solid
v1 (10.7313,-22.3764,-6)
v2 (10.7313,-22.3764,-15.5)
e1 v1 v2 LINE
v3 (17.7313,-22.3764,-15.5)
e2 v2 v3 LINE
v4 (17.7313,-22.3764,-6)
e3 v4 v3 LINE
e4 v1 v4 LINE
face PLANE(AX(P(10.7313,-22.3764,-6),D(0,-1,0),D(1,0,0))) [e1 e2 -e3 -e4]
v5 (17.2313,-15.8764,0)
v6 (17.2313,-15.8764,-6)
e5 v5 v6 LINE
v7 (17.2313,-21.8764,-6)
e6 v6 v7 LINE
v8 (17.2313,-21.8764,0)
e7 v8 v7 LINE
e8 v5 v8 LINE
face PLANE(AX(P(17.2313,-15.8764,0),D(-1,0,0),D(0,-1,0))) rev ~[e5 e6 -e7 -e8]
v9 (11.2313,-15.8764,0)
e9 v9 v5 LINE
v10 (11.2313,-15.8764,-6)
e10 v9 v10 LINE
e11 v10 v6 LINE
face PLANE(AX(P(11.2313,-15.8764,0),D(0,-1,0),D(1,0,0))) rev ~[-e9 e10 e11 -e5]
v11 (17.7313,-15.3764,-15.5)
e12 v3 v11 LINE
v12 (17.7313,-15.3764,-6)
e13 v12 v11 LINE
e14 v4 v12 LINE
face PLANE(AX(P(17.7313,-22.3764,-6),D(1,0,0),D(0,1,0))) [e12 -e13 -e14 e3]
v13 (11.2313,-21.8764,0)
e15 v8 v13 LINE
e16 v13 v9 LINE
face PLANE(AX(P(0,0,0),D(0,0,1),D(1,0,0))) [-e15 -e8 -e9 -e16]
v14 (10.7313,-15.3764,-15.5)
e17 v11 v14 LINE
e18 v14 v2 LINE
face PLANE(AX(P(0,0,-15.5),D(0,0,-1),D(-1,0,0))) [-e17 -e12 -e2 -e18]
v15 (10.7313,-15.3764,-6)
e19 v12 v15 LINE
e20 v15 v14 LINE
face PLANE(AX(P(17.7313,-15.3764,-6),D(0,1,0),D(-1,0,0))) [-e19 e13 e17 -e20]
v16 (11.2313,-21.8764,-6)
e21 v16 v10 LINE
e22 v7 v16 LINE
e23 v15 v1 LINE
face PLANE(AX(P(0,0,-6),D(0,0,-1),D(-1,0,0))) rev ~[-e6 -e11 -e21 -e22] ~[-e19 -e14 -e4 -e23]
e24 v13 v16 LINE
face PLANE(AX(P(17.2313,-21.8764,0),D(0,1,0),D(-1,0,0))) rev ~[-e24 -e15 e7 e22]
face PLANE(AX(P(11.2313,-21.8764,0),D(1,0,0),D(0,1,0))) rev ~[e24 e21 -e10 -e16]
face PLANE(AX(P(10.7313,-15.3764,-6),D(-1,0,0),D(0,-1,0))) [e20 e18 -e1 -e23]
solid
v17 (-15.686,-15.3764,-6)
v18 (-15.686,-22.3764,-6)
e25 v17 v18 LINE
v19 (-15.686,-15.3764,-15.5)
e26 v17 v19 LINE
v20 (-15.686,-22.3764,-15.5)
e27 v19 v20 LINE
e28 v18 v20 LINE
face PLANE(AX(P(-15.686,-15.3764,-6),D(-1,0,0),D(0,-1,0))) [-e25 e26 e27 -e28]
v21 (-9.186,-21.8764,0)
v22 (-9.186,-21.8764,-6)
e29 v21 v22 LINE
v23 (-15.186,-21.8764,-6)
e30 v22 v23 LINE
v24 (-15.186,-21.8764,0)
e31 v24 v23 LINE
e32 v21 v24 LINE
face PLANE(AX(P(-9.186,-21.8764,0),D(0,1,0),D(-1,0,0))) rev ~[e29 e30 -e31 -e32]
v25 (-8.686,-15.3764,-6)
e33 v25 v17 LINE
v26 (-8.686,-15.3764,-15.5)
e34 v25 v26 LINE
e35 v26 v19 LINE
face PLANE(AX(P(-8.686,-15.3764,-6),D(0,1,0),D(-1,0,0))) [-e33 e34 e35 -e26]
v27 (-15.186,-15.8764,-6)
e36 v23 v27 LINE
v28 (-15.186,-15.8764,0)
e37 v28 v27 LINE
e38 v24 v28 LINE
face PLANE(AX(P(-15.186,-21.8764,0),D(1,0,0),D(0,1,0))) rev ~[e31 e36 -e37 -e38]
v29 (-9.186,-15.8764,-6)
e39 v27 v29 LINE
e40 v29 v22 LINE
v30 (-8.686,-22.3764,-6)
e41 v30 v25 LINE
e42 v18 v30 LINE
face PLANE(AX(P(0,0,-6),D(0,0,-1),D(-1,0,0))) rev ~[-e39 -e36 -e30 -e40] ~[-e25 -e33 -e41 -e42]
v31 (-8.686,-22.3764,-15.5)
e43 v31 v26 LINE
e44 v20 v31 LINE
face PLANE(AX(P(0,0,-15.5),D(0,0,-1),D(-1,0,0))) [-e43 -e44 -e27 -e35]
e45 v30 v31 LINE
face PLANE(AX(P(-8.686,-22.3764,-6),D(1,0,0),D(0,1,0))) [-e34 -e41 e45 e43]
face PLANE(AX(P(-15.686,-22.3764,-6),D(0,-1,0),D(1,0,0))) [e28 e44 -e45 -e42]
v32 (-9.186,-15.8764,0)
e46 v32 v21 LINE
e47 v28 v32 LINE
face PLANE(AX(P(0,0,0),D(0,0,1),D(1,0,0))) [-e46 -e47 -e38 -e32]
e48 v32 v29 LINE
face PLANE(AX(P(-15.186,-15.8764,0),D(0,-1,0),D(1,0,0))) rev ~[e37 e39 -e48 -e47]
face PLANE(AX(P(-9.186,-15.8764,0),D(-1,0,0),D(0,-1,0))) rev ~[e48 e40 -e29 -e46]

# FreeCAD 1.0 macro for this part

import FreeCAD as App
import Part
import Sketcher

V = App.Vector

doc = App.newDocument("Part")
body = doc.addObject("PartDesign::Body", "Body")
body.AllowCompound = True

sketch1 = doc.addObject("Sketcher::SketchObject", "Sketch")
body.addObject(sketch1)
sketch1.AttachmentSupport = (doc.XY_Plane, [""])
sketch1.MapMode = "FlatFace"
sketch1.addGeometry([
    Part.LineSegment(V(-9, -16, 0), V(-15, -16, 0)),
    Part.LineSegment(V(-15, -16, 0), V(-15, -22, 0)),
    Part.LineSegment(V(-15, -22, 0), V(-9, -22, 0)),
    Part.LineSegment(V(-9, -22, 0), V(-9, -16, 0)),
    Part.LineSegment(V(17, -16, 0), V(11, -16, 0)),
    Part.LineSegment(V(11, -16, 0), V(11, -22, 0)),
    Part.LineSegment(V(11, -22, 0), V(17, -22, 0)),
    Part.LineSegment(V(17, -22, 0), V(17, -16, 0)),
], False)
sketch1.addConstraint([
    Sketcher.Constraint("Coincident", 0, 2, 1, 1),
    Sketcher.Constraint("Coincident", 1, 2, 2, 1),
    Sketcher.Constraint("Coincident", 2, 2, 3, 1),
    Sketcher.Constraint("Coincident", 3, 2, 0, 1),
    Sketcher.Constraint("Coincident", 4, 2, 5, 1),
    Sketcher.Constraint("Coincident", 5, 2, 6, 1),
    Sketcher.Constraint("Coincident", 6, 2, 7, 1),
    Sketcher.Constraint("Coincident", 7, 2, 4, 1),
    Sketcher.Constraint("Horizontal", 0),
    Sketcher.Constraint("Vertical", 1),
    Sketcher.Constraint("Horizontal", 2),
    Sketcher.Constraint("Vertical", 3),
    Sketcher.Constraint("Horizontal", 4),
    Sketcher.Constraint("Vertical", 5),
    Sketcher.Constraint("Horizontal", 6),
    Sketcher.Constraint("Vertical", 7),
    Sketcher.Constraint("Horizontal", 3, 2, 4, 2),
    Sketcher.Constraint("Horizontal", 2, 2, 5, 2),
    Sketcher.Constraint("Equal", 2, 4),
    Sketcher.Constraint("Equal", 6, 1),
    Sketcher.Constraint("DistanceX", 0, 2, 0, 1, 6.0),
    Sketcher.Constraint("DistanceX", 0, 2, -1, 1, 15.186),
    Sketcher.Constraint("DistanceY", 0, 2, -1, 1, 15.8764),
    Sketcher.Constraint("DistanceX", -1, 1, 4, 2, 11.2313),
])
pad1 = doc.addObject("PartDesign::Pad", "Pad")
body.addObject(pad1)
pad1.Profile = sketch1
pad1.Length = 6
pad1.Reversed = True

sketch2 = doc.addObject("Sketcher::SketchObject", "Sketch001")
body.addObject(sketch2)
sketch2.AttachmentSupport = (doc.XY_Plane, [""])
sketch2.MapMode = "FlatFace"
sketch2.AttachmentOffset = App.Placement(V(0, 0, -6), App.Rotation())
sketch2.addGeometry([
    Part.LineSegment(V(-9, -22, 0), V(-16, -22, 0)),
    Part.LineSegment(V(-16, -22, 0), V(-16, -15, 0)),
    Part.LineSegment(V(-16, -15, 0), V(-9, -15, 0)),
    Part.LineSegment(V(-9, -15, 0), V(-9, -22, 0)),
    Part.LineSegment(V(18, -22, 0), V(11, -22, 0)),
    Part.LineSegment(V(11, -22, 0), V(11, -15, 0)),
    Part.LineSegment(V(11, -15, 0), V(18, -15, 0)),
    Part.LineSegment(V(18, -15, 0), V(18, -22, 0)),
], False)
sketch2.addConstraint([
    Sketcher.Constraint("Coincident", 0, 2, 1, 1),
    Sketcher.Constraint("Coincident", 1, 2, 2, 1),
    Sketcher.Constraint("Coincident", 2, 2, 3, 1),
    Sketcher.Constraint("Coincident", 3, 2, 0, 1),
    Sketcher.Constraint("Coincident", 4, 2, 5, 1),
    Sketcher.Constraint("Coincident", 5, 2, 6, 1),
    Sketcher.Constraint("Coincident", 6, 2, 7, 1),
    Sketcher.Constraint("Coincident", 7, 2, 4, 1),
    Sketcher.Constraint("Horizontal", 0),
    Sketcher.Constraint("Vertical", 1),
    Sketcher.Constraint("Horizontal", 2),
    Sketcher.Constraint("Vertical", 3),
    Sketcher.Constraint("Horizontal", 4),
    Sketcher.Constraint("Vertical", 5),
    Sketcher.Constraint("Horizontal", 6),
    Sketcher.Constraint("Vertical", 7),
    Sketcher.Constraint("Horizontal", 3, 2, 4, 2),
    Sketcher.Constraint("Horizontal", 2, 2, 5, 2),
    Sketcher.Constraint("Equal", 2, 4),
    Sketcher.Constraint("Equal", 6, 1),
    Sketcher.Constraint("DistanceX", 0, 2, 0, 1, 7.0),
    Sketcher.Constraint("DistanceX", 0, 2, -1, 1, 15.686),
    Sketcher.Constraint("DistanceY", 0, 2, -1, 1, 22.3764),
    Sketcher.Constraint("DistanceX", -1, 1, 4, 2, 10.7313),
])
pad2 = doc.addObject("PartDesign::Pad", "Pad001")
body.addObject(pad2)
pad2.Profile = sketch2
pad2.Length = 9.5
pad2.Reversed = True

doc.recompute()
